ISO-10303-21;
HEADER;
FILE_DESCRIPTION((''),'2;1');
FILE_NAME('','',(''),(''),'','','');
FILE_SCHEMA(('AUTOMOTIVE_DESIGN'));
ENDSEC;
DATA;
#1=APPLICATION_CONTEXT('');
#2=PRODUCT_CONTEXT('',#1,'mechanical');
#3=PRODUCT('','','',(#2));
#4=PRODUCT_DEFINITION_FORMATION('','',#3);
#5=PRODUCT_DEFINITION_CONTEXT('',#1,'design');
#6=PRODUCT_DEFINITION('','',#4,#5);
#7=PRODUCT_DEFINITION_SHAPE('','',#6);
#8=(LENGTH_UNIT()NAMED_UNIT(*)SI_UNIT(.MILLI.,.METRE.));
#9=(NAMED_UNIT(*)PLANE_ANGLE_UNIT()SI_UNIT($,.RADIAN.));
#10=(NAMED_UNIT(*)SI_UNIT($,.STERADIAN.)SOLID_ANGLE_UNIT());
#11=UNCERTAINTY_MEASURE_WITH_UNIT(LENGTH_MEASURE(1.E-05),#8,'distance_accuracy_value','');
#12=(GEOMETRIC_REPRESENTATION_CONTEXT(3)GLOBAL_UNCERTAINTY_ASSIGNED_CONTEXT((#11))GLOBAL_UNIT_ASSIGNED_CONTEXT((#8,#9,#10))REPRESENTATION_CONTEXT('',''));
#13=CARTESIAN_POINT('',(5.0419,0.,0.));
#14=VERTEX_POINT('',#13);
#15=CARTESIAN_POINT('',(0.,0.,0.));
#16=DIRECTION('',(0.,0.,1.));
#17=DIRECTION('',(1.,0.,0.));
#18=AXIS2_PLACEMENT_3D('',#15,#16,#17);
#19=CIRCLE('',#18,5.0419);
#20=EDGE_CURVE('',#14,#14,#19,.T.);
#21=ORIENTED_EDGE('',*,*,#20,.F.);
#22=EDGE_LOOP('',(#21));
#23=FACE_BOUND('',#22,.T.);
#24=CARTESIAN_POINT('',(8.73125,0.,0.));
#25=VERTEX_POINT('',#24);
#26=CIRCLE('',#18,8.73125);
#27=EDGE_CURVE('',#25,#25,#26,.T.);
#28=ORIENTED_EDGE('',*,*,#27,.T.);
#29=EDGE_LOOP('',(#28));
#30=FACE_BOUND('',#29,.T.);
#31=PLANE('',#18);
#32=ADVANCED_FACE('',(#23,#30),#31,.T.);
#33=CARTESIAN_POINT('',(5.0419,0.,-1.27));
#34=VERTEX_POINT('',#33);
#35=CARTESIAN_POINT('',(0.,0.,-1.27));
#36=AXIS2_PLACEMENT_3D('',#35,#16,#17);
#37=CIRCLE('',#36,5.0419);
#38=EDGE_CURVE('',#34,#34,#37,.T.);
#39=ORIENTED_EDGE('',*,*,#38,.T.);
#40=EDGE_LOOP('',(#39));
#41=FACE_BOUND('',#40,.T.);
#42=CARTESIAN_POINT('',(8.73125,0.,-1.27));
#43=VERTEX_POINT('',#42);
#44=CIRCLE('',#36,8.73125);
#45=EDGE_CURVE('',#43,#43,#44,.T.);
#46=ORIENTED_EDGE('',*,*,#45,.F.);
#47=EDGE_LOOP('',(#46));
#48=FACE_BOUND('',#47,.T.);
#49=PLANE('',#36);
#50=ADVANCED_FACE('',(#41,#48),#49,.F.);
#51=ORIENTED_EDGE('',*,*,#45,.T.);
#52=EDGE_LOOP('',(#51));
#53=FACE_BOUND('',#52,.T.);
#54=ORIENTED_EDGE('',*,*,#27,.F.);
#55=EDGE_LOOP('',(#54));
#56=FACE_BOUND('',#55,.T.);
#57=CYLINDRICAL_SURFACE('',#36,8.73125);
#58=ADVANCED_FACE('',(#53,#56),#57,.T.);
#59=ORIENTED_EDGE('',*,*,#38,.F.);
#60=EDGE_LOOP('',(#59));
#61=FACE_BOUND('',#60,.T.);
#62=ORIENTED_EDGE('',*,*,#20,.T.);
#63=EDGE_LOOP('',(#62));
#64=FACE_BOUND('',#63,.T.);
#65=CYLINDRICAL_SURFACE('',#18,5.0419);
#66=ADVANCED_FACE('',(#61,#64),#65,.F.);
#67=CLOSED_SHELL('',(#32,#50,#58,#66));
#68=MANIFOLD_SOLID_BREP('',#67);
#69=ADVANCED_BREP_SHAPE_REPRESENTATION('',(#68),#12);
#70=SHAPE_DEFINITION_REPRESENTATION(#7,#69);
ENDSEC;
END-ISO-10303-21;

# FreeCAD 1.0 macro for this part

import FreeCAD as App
import Part
import Sketcher

V = App.Vector
Q = App.Units.Quantity

doc = App.newDocument("Part")
body = doc.addObject("PartDesign::Body", "Body")

# Sketch on XY plane
sketch1 = body.newObject("Sketcher::SketchObject", "Sketch")
sketch1.AttachmentSupport = (doc.getObject("XY_Plane"), [""])
sketch1.MapMode = "FlatFace"
sketch1.addGeometry(Part.Circle(V(0, 0, 0), V(0, 0, 1), 8.73125), False)
sketch1.addGeometry(Part.Circle(V(0, 0, 0), V(0, 0, 1), 4.365625), False)
sketch1.addConstraint(Sketcher.Constraint("Coincident", 0, 3, -1, 1))
sketch1.addConstraint(Sketcher.Constraint("Coincident", 1, 3, -1, 1))
sketch1.addConstraint(Sketcher.Constraint("Diameter", 0, Q("0.6875 in")))
sketch1.addConstraint(Sketcher.Constraint("Diameter", 1, Q("0.34375 in")))
pad1 = body.newObject("PartDesign::Pad", "Pad")
pad1.Profile = sketch1
pad1.Length = Q("0.05 in")
pad1.Reversed = True

# Sketch on XY plane
sketch2 = body.newObject("Sketcher::SketchObject", "Sketch001")
sketch2.AttachmentSupport = (doc.getObject("XY_Plane"), [""])
sketch2.MapMode = "FlatFace"
sketch2.addGeometry(Part.Circle(V(0, 0, 0), V(0, 0, 1), 5.0419), False)
sketch2.addConstraint(Sketcher.Constraint("Coincident", 0, 3, -1, 1))
sketch2.addConstraint(Sketcher.Constraint("Diameter", 0, Q("0.397 in")))
doc.recompute()
hole = body.newObject("PartDesign::Hole", "Hole")
hole.Profile = sketch2
hole.ThreadType = "None"
hole.Diameter = Q("0.397 in")
hole.DepthType = "Dimension"
hole.Depth = Q("0.5 in")
hole.DrillPoint = "Angled"
hole.DrillPointAngle = 118

doc.recompute()
